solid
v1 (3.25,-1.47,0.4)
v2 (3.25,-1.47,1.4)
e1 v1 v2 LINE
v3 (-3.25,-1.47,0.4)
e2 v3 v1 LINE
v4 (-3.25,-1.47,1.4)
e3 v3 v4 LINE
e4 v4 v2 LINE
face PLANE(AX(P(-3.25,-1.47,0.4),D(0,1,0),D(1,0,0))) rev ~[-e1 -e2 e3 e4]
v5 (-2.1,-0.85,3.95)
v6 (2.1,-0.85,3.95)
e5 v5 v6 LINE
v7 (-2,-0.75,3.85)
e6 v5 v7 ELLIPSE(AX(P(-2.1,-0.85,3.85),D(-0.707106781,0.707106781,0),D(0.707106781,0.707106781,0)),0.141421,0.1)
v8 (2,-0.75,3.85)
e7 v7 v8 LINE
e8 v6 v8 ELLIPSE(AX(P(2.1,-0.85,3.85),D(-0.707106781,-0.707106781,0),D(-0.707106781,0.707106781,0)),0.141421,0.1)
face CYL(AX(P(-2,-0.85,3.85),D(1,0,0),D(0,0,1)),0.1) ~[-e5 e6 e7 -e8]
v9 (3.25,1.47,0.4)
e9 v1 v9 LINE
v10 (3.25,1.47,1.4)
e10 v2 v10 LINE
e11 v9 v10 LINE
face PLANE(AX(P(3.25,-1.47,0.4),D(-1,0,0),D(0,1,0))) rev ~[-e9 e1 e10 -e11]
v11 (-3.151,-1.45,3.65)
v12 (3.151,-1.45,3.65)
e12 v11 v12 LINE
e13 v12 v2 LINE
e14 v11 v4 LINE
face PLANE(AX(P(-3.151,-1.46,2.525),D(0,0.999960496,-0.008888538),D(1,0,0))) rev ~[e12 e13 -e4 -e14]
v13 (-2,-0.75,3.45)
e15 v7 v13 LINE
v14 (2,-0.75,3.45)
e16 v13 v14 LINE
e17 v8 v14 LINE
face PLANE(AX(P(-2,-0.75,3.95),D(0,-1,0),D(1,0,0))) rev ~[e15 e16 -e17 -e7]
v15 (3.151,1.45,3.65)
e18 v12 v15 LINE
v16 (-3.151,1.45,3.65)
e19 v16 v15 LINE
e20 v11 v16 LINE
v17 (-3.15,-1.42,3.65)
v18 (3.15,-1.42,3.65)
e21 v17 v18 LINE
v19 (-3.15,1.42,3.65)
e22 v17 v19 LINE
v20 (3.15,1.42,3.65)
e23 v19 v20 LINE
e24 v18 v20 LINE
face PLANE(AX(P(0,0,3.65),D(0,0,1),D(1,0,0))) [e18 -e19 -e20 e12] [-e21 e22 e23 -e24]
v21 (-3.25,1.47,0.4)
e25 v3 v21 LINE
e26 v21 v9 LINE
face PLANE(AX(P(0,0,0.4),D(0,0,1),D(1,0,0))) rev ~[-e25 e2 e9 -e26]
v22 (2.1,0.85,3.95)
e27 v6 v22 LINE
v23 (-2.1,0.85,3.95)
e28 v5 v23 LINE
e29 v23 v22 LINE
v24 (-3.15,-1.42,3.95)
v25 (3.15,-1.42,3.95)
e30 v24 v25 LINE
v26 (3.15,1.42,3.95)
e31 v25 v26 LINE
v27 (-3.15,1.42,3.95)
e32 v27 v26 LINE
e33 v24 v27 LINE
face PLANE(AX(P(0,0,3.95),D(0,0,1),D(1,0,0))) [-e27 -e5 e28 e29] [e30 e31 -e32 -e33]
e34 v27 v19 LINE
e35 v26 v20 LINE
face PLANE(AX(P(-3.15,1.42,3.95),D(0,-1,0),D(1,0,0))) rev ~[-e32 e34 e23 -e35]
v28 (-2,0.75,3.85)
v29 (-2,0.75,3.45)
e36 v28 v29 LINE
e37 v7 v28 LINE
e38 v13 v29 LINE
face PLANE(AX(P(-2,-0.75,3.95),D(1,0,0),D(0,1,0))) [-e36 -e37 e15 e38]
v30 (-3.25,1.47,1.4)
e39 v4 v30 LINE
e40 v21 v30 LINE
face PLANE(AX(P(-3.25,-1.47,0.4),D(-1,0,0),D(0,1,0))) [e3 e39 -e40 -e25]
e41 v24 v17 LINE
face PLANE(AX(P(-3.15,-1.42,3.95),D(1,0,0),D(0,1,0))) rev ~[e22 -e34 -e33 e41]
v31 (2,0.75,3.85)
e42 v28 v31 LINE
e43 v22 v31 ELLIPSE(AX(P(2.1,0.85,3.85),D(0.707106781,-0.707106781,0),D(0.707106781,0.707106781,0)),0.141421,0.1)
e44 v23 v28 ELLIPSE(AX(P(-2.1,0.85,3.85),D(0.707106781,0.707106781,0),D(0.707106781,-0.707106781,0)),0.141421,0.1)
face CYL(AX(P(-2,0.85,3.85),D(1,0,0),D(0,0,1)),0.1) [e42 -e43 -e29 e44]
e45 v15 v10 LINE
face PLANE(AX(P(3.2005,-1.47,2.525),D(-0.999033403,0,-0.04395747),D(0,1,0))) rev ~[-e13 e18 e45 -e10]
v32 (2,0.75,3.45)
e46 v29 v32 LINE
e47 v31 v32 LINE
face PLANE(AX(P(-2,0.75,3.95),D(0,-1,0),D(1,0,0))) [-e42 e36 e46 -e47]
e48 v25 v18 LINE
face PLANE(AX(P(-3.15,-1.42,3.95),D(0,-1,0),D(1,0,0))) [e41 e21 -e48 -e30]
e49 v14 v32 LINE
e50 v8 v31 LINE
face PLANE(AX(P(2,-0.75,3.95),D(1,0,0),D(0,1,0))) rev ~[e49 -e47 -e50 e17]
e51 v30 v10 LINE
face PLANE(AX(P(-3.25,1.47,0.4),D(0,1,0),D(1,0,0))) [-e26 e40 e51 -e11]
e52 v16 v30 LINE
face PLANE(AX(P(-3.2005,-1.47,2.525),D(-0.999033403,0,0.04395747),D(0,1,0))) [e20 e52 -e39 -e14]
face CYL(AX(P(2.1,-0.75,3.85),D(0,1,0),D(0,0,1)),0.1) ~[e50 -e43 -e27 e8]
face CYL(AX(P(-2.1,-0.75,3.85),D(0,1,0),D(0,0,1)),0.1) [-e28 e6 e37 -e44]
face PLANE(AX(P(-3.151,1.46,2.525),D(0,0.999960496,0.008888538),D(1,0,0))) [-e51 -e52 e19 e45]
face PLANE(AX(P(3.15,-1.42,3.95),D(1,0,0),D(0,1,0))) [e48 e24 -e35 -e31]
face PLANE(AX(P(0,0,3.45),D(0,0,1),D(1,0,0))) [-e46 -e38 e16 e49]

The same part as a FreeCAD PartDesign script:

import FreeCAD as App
import Part
import Sketcher

V = App.Vector
Q = App.Units.Quantity


def edges_at(feature, points):
    """Names of the edges that pass closest to the given points."""
    edges = feature.Shape.Edges
    near = lambda p: min(range(len(edges)), key=lambda i: edges[i].distToShape(Part.Vertex(*p))[0])
    return sorted({f"Edge{near(p) + 1}" for p in points})


def add_polygon(sketch, points):
    """Adds a closed chain of lines whose ends are joined by coincident constraints."""
    first, n = sketch.GeometryCount, len(points)
    for a, b in zip(points, points[1:] + points[:1]):
        sketch.addGeometry(Part.LineSegment(App.Vector(*a, 0), App.Vector(*b, 0)), False)
    for i in range(n):
        sketch.addConstraint(Sketcher.Constraint("Coincident", first + i, 2, first + (i + 1) % n, 1))

doc = App.newDocument("Part")
params = doc.addObject("Spreadsheet::Sheet", "Params")
for row, (alias, value) in enumerate([
    ("sketch1_width", "6.5 mm"),
    ("sketch1_height", "2.94 mm"),
    ("pad1_length", "3.55 mm"),
    ("sketch2_width", "6.5 mm"),
    ("sketch2_width2", "6.3 mm"),
    ("sketch2_height", "2.94 mm"),
    ("sketch2_height2", "2.84 mm"),
    ("pocket1_length", "0.3 mm"),
    ("chamfer_size", "0.099 mm"),
    ("chamfer_size2", "2.25 mm"),
    ("chamfer2_size", "0.099 mm"),
    ("chamfer2_size2", "2.25 mm"),
    ("chamfer3_size", "0.02 mm"),
    ("chamfer3_size2", "2.25 mm"),
    ("chamfer4_size", "0.02 mm"),
    ("chamfer4_size2", "2.25 mm"),
    ("sketch3_width", "4 mm"),
    ("sketch3_height", "1.5 mm"),
    ("pocket2_length", "0.5 mm"),
    ("fillet_radius", "0.1 mm"),
], start=1):
    params.set(f"A{row}", alias)
    params.set(f"B{row}", "=" + value)
    params.setAlias(f"B{row}", alias)

body = doc.addObject("PartDesign::Body", "Body")

# Sketch on XY plane
sketch1 = body.newObject("Sketcher::SketchObject", "Sketch")
sketch1.AttachmentSupport = (doc.getObject("XY_Plane"), [""])
sketch1.MapMode = "FlatFace"
add_polygon(sketch1, [(-3.2, 1.5), (-3.2, -1.5), (3.2, -1.5), (3.2, 1.5)])  # lines 0-3
sketch1.addConstraint([
    Sketcher.Constraint("Vertical", 0),
    Sketcher.Constraint("Horizontal", 1),
    Sketcher.Constraint("Vertical", 2),
    Sketcher.Constraint("Horizontal", 3),
    Sketcher.Constraint("Symmetric", 0, 2, 2, 2, -1, 1),
    Sketcher.Constraint("DistanceX", 1, 1, 1, 2, Q("6.5 mm")),
    Sketcher.Constraint("DistanceY", 0, 2, 0, 1, Q("2.94 mm")),
])
sketch1.setExpression("Constraints[9]", "Params.sketch1_width")
sketch1.setExpression("Constraints[10]", "Params.sketch1_height")
pad1 = body.newObject("PartDesign::Pad", "Pad")
pad1.Profile = sketch1
pad1.setExpression("Length", "Params.pad1_length")

# Sketch on XY plane
sketch2 = body.newObject("Sketcher::SketchObject", "Sketch001")
sketch2.AttachmentSupport = (doc.getObject("XY_Plane"), [""])
sketch2.MapMode = "FlatFace"
sketch2.AttachmentOffset = App.Placement(V(0, 0, 3.55), App.Rotation())
add_polygon(sketch2, [(-3.2, 1.5), (-3.2, -1.5), (3.2, -1.5), (3.2, 1.5)])  # lines 0-3
add_polygon(sketch2, [(3.1, -1.4), (-3.1, -1.4), (-3.1, 1.4), (3.1, 1.4)])  # lines 4-7
sketch2.addConstraint([
    Sketcher.Constraint("Vertical", 0),
    Sketcher.Constraint("Horizontal", 1),
    Sketcher.Constraint("Vertical", 2),
    Sketcher.Constraint("Horizontal", 3),
    Sketcher.Constraint("Horizontal", 4),
    Sketcher.Constraint("Vertical", 5),
    Sketcher.Constraint("Horizontal", 6),
    Sketcher.Constraint("Vertical", 7),
    Sketcher.Constraint("Symmetric", 0, 2, 2, 2, -1, 1),
    Sketcher.Constraint("Symmetric", 4, 2, 6, 2, -1, 1),
    Sketcher.Constraint("DistanceX", 1, 1, 1, 2, Q("6.5 mm")),
    Sketcher.Constraint("DistanceX", 4, 2, 4, 1, Q("6.3 mm")),
    Sketcher.Constraint("DistanceY", 0, 2, 0, 1, Q("2.94 mm")),
    Sketcher.Constraint("DistanceY", 5, 1, 5, 2, Q("2.84 mm")),
])
sketch2.setExpression("Constraints[18]", "Params.sketch2_width")
sketch2.setExpression("Constraints[19]", "Params.sketch2_width2")
sketch2.setExpression("Constraints[20]", "Params.sketch2_height")
sketch2.setExpression("Constraints[21]", "Params.sketch2_height2")
pocket1 = body.newObject("PartDesign::Pocket", "Pocket")
pocket1.Profile = sketch2
pocket1.setExpression("Length", "Params.pocket1_length")
doc.recompute()

chamfer = body.newObject("PartDesign::Chamfer", "Chamfer")
chamfer.Base = (pocket1, edges_at(pocket1, [(-3.25, 0, 3.25)]))
chamfer.ChamferType = "Two distances"
chamfer.setExpression("Size", "Params.chamfer_size")
chamfer.setExpression("Size2", "Params.chamfer_size2")
chamfer.FlipDirection = True
doc.recompute()

chamfer2 = body.newObject("PartDesign::Chamfer", "Chamfer001")
chamfer2.Base = (chamfer, edges_at(chamfer, [(3.25, 0, 3.25)]))
chamfer2.ChamferType = "Two distances"
chamfer2.setExpression("Size", "Params.chamfer2_size")
chamfer2.setExpression("Size2", "Params.chamfer2_size2")
doc.recompute()

chamfer3 = body.newObject("PartDesign::Chamfer", "Chamfer002")
chamfer3.Base = (chamfer2, edges_at(chamfer2, [(0, 1.47, 3.25)]))
chamfer3.ChamferType = "Two distances"
chamfer3.setExpression("Size", "Params.chamfer3_size")
chamfer3.setExpression("Size2", "Params.chamfer3_size2")
doc.recompute()

chamfer4 = body.newObject("PartDesign::Chamfer", "Chamfer003")
chamfer4.Base = (chamfer3, edges_at(chamfer3, [(0, -1.47, 3.25)]))
chamfer4.ChamferType = "Two distances"
chamfer4.setExpression("Size", "Params.chamfer4_size")
chamfer4.setExpression("Size2", "Params.chamfer4_size2")

# Sketch on XY plane
sketch3 = body.newObject("Sketcher::SketchObject", "Sketch002")
sketch3.AttachmentSupport = (doc.getObject("XY_Plane"), [""])
sketch3.MapMode = "FlatFace"
sketch3.AttachmentOffset = App.Placement(V(0, 0, 3.55), App.Rotation())
add_polygon(sketch3, [(-2, 0.8), (-2, -0.8), (2, -0.8), (2, 0.8)])  # lines 0-3
sketch3.addConstraint([
    Sketcher.Constraint("Vertical", 0),
    Sketcher.Constraint("Horizontal", 1),
    Sketcher.Constraint("Vertical", 2),
    Sketcher.Constraint("Horizontal", 3),
    Sketcher.Constraint("Symmetric", 0, 2, 2, 2, -1, 1),
    Sketcher.Constraint("DistanceX", 1, 1, 1, 2, Q("4 mm")),
    Sketcher.Constraint("DistanceY", 0, 2, 0, 1, Q("1.5 mm")),
])
sketch3.setExpression("Constraints[9]", "Params.sketch3_width")
sketch3.setExpression("Constraints[10]", "Params.sketch3_height")
pocket2 = body.newObject("PartDesign::Pocket", "Pocket001")
pocket2.Profile = sketch3
pocket2.setExpression("Length", "Params.pocket2_length")
doc.recompute()

fillet = body.newObject("PartDesign::Fillet", "Fillet")
fillet.Base = (pocket2, edges_at(pocket2, [
    (2, 0, 3.55),
    (0, -0.75, 3.55),
    (0, 0.75, 3.55),
    (-2, 0, 3.55),
]))
fillet.setExpression("Radius", "Params.fillet_radius")
body2 = doc.addObject("PartDesign::Body", "Body001")
doc.recompute()

body.Placement = App.Placement(V(0, 0, 0.4), App.Rotation(V(0, 0, 1), 0))
boolean = body2.newObject("PartDesign::Boolean", "Boolean")
boolean.Type = "Fuse"
boolean.addObjects([body])

doc.recompute()
